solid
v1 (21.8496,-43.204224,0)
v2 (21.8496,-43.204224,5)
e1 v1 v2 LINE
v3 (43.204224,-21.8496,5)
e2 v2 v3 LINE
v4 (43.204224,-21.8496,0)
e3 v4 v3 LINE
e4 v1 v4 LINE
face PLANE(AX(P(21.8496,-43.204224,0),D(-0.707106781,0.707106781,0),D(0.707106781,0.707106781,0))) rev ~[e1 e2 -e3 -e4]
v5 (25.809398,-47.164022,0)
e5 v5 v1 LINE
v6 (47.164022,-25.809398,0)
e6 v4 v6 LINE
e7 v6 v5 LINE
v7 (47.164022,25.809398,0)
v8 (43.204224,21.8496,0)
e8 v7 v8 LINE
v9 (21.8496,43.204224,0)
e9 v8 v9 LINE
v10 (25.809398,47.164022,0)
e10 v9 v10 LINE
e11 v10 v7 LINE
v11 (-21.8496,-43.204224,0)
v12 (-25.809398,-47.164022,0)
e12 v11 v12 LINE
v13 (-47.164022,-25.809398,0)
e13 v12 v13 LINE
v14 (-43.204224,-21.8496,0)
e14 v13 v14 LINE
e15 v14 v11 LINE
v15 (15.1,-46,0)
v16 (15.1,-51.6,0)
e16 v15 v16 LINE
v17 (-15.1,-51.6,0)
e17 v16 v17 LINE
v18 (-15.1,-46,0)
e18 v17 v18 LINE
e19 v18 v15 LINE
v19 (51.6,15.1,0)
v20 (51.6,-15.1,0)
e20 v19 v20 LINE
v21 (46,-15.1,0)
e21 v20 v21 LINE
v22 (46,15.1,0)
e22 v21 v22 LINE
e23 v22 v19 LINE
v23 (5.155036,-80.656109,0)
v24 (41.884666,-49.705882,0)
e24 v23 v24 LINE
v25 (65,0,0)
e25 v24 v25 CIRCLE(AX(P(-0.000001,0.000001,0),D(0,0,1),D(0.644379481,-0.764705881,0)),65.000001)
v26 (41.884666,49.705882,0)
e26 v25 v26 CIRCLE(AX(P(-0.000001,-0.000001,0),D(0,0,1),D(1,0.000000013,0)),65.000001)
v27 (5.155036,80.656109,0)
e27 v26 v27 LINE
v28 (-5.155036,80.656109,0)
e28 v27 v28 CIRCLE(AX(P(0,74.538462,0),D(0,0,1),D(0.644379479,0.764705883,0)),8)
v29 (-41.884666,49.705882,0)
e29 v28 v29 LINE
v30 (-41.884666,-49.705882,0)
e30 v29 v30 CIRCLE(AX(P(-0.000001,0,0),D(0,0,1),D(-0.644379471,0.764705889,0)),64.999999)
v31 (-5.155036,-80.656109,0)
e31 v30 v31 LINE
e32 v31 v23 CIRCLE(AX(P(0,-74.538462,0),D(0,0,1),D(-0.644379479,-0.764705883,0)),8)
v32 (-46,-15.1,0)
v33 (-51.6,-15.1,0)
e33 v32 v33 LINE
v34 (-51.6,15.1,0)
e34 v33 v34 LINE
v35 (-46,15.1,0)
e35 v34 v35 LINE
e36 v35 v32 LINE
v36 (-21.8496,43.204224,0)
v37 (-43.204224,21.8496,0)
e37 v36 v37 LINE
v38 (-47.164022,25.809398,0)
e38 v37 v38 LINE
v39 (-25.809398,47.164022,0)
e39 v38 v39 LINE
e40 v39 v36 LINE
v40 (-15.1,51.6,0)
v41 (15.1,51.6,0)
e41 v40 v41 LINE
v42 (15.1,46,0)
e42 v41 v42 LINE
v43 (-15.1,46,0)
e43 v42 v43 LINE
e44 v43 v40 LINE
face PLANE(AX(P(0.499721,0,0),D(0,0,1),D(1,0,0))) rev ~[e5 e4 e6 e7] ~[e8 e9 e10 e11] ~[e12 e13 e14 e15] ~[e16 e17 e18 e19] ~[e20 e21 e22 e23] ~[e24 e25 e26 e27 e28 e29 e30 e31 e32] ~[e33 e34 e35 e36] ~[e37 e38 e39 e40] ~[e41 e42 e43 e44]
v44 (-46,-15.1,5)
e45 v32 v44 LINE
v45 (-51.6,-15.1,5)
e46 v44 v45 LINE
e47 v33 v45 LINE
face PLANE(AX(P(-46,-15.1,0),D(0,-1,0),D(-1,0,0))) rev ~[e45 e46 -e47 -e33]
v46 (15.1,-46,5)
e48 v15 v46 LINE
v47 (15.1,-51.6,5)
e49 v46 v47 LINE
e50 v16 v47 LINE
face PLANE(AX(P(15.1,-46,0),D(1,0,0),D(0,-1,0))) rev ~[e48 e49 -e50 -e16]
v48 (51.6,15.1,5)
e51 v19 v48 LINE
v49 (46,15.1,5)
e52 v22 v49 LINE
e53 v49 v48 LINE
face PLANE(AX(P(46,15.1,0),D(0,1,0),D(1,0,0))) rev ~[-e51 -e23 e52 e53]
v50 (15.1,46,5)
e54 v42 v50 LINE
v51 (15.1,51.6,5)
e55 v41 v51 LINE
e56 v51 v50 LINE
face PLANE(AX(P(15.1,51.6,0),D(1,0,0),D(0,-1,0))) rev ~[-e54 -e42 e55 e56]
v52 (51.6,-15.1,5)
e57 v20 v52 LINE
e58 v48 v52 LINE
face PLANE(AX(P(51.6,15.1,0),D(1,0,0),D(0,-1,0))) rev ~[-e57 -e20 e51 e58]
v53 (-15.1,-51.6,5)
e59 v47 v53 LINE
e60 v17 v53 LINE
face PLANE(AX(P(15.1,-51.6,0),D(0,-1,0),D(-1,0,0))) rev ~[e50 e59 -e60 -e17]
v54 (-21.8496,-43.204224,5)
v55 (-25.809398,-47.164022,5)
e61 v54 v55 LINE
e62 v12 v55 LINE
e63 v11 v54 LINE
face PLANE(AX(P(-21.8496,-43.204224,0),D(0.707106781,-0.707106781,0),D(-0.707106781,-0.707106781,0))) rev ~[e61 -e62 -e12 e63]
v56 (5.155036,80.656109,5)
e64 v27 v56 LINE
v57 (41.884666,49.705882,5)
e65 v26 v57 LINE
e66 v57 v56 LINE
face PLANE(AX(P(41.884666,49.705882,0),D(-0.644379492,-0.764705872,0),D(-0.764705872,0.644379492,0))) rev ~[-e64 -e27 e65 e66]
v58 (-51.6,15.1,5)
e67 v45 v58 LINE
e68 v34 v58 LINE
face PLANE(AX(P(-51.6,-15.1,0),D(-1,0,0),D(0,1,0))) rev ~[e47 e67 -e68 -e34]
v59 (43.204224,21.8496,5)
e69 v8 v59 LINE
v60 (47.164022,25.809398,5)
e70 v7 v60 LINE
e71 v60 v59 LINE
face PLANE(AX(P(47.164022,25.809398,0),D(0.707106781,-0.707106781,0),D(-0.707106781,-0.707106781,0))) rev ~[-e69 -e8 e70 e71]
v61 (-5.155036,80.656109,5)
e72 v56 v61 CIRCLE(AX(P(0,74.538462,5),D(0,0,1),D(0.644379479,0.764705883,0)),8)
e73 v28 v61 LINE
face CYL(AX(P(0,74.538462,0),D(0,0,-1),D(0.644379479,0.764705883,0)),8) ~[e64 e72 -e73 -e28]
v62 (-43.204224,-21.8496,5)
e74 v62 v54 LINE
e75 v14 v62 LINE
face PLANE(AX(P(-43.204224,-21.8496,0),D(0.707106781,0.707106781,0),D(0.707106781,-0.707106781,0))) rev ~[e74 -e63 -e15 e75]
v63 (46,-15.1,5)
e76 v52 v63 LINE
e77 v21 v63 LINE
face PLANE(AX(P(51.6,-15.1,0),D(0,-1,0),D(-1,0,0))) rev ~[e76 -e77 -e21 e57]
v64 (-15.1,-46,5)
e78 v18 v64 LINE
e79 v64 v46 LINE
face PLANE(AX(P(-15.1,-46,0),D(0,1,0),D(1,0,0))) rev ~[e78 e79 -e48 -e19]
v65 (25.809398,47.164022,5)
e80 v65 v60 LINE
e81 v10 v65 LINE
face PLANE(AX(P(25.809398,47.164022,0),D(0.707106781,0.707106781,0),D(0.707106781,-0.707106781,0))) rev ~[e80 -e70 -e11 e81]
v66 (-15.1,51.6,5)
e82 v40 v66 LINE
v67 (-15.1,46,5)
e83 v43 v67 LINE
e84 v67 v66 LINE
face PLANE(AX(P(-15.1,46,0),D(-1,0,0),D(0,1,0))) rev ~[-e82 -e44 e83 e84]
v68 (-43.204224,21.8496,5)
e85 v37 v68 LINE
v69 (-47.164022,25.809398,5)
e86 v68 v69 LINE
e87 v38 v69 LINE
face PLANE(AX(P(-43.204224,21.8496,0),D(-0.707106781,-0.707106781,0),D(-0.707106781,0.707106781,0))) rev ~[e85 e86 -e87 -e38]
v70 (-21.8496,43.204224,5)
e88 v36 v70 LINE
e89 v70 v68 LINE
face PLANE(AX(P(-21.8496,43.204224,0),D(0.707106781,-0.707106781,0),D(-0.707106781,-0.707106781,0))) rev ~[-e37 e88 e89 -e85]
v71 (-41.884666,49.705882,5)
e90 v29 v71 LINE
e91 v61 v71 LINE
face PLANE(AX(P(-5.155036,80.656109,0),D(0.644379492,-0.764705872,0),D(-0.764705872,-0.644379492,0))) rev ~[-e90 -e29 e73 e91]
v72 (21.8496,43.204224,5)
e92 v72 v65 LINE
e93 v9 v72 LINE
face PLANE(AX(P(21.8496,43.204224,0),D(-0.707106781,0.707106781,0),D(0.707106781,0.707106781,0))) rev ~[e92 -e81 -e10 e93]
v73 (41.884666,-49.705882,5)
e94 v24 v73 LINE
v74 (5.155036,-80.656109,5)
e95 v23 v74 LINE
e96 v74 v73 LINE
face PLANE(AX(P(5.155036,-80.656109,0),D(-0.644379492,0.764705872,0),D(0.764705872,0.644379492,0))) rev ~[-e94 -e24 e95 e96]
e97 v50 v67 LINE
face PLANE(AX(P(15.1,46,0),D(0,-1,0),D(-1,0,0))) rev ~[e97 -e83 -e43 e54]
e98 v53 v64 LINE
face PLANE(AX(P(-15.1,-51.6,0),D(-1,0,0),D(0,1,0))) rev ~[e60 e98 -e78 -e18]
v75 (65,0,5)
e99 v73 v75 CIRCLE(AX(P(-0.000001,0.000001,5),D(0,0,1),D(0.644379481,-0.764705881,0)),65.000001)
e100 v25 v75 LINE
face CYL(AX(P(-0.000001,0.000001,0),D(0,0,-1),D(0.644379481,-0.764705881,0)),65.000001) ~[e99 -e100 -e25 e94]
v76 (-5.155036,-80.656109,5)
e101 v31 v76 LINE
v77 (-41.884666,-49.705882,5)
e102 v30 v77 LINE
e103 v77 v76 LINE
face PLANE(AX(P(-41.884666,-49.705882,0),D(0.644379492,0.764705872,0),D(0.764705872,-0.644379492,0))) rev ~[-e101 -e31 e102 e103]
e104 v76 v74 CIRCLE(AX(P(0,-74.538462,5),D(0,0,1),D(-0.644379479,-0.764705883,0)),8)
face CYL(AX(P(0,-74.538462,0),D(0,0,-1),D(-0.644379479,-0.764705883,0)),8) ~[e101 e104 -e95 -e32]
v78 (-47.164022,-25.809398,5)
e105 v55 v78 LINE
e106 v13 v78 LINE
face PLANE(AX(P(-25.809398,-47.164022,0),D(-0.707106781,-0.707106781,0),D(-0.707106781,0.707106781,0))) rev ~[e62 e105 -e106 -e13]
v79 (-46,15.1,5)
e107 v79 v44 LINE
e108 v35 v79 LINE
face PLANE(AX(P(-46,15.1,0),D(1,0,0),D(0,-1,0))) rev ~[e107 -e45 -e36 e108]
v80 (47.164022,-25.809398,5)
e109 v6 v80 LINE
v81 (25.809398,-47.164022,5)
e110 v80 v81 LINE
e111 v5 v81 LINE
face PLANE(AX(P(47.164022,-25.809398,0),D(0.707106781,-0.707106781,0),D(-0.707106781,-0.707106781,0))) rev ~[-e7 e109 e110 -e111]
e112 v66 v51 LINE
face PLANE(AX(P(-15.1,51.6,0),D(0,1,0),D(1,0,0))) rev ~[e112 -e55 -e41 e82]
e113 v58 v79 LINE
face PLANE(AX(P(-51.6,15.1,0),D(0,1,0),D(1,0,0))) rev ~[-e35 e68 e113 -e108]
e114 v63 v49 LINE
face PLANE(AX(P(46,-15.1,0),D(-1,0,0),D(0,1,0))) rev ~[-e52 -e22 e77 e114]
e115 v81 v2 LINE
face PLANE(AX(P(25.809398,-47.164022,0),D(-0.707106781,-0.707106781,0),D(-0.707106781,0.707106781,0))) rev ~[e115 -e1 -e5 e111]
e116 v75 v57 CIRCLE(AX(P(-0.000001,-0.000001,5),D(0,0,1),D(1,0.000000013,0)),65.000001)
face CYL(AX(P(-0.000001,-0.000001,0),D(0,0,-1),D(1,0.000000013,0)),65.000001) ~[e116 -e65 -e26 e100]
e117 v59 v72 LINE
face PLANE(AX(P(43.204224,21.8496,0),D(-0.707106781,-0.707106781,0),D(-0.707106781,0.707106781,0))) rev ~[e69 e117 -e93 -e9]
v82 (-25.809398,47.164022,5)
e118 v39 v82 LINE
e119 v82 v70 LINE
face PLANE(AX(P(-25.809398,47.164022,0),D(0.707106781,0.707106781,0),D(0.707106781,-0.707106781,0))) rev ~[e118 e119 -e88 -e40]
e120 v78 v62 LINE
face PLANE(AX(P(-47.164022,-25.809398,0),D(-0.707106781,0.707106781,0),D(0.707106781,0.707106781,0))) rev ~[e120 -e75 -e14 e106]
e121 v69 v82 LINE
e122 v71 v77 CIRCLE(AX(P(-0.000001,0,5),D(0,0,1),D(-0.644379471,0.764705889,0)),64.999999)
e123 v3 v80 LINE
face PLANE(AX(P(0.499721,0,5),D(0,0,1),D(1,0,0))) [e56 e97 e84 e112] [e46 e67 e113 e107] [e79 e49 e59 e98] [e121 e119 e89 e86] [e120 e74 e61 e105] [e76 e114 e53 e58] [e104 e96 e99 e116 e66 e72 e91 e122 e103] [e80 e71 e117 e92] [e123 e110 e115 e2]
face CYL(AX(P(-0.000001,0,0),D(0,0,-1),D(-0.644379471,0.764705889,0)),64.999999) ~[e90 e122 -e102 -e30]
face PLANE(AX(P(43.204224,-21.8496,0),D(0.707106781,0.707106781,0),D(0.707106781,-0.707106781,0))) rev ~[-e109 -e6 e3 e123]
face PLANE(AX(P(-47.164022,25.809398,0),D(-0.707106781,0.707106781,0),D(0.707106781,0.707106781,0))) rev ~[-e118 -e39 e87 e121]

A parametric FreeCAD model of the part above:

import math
import FreeCAD as App
import Part
import Sketcher
from FreeCAD import Vector
Q = App.Units.Quantity


def add_polygon(sketch, points):
    """Adds a closed chain of lines whose ends are joined by coincident constraints."""
    first, n = sketch.GeometryCount, len(points)
    for a, b in zip(points, points[1:] + points[:1]):
        sketch.addGeometry(Part.LineSegment(App.Vector(*a, 0), App.Vector(*b, 0)), False)
    for i in range(n):
        sketch.addConstraint(Sketcher.Constraint("Coincident", first + i, 2, first + (i + 1) % n, 1))

doc = App.newDocument("Part")
body = doc.addObject("PartDesign::Body", "Body")

# Sketch on XY plane
sketch1 = body.newObject("Sketcher::SketchObject", "Sketch")
sketch1.AttachmentSupport = (doc.getObject("XY_Plane"), [""])
sketch1.MapMode = "FlatFace"
sketch1.addGeometry(Part.ArcOfCircle(Part.Circle(Vector(-0.000001, 0.000001, 0), Vector(0, 0, 1), 65.000001), math.radians(-49.880833), math.radians(-0.000001)), False)  # 0
sketch1.addGeometry(Part.ArcOfCircle(Part.Circle(Vector(-0.000001, -0.000001, 0), Vector(0, 0, 1), 65.000001), math.radians(0.000001), math.radians(49.880833)), False)  # 1
sketch1.addGeometry(Part.LineSegment(Vector(41.884666, 49.705882, 0), Vector(5.155036, 80.656109, 0)), False)  # 2
sketch1.addGeometry(Part.ArcOfCircle(Part.Circle(Vector(0, 74.538462, 0), Vector(0, 0, 1), 8), math.radians(49.880833), math.radians(130.119167)), False)  # 3
sketch1.addGeometry(Part.LineSegment(Vector(-5.155036, 80.656109, 0), Vector(-41.884666, 49.705882, 0)), False)  # 4
sketch1.addGeometry(Part.ArcOfCircle(Part.Circle(Vector(-0.000001, 0, 0), Vector(0, 0, 1), 64.999999), math.radians(130.119166), math.radians(229.880834)), False)  # 5
sketch1.addGeometry(Part.LineSegment(Vector(-41.884666, -49.705882, 0), Vector(-5.155036, -80.656109, 0)), False)  # 6
sketch1.addGeometry(Part.ArcOfCircle(Part.Circle(Vector(0, -74.538462, 0), Vector(0, 0, 1), 8), math.radians(-130.119167), math.radians(-49.880833)), False)  # 7
sketch1.addGeometry(Part.LineSegment(Vector(5.155036, -80.656109, 0), Vector(41.884666, -49.705882, 0)), False)  # 8
add_polygon(sketch1, [(-25.809398, -47.164022), (-47.164022, -25.809398), (-43.204224, -21.8496), (-21.8496, -43.204224)])  # lines 9-12
add_polygon(sketch1, [(15.1, -51.6), (-15.1, -51.6), (-15.1, -46), (15.1, -46)])  # lines 13-16
add_polygon(sketch1, [(47.164022, -25.809398), (25.809398, -47.164022), (21.8496, -43.204224), (43.204224, -21.8496)])  # lines 17-20
add_polygon(sketch1, [(-51.6, 15.1), (-46, 15.1), (-46, -15.1), (-51.6, -15.1)])  # lines 21-24
add_polygon(sketch1, [(-47.164022, 25.809398), (-25.809398, 47.164022), (-21.8496, 43.204224), (-43.204224, 21.8496)])  # lines 25-28
add_polygon(sketch1, [(51.6, 15.1), (51.6, -15.1), (46, -15.1), (46, 15.1)])  # lines 29-32
add_polygon(sketch1, [(-15.1, 51.6), (15.1, 51.6), (15.1, 46), (-15.1, 46)])  # lines 33-36
add_polygon(sketch1, [(25.809398, 47.164022), (47.164022, 25.809398), (43.204224, 21.8496), (21.8496, 43.204224)])  # lines 37-40
sketch1.addConstraint([
    Sketcher.Constraint("Tangent", 0, 2, 1, 1),
    Sketcher.Constraint("Tangent", 1, 2, 2, 1),
    Sketcher.Constraint("Tangent", 2, 2, 3, 1),
    Sketcher.Constraint("Tangent", 3, 2, 4, 1),
    Sketcher.Constraint("Tangent", 4, 2, 5, 1),
    Sketcher.Constraint("Tangent", 5, 2, 6, 1),
    Sketcher.Constraint("Tangent", 6, 2, 7, 1),
    Sketcher.Constraint("Tangent", 7, 2, 8, 1),
    Sketcher.Constraint("Tangent", 8, 2, 0, 1),
    Sketcher.Constraint("Horizontal", 13),
    Sketcher.Constraint("Vertical", 14),
    Sketcher.Constraint("Horizontal", 15),
    Sketcher.Constraint("Vertical", 16),
    Sketcher.Constraint("Horizontal", 21),
    Sketcher.Constraint("Vertical", 22),
    Sketcher.Constraint("Horizontal", 23),
    Sketcher.Constraint("Vertical", 24),
    Sketcher.Constraint("Vertical", 29),
    Sketcher.Constraint("Horizontal", 30),
    Sketcher.Constraint("Vertical", 31),
    Sketcher.Constraint("Horizontal", 32),
    Sketcher.Constraint("Horizontal", 33),
    Sketcher.Constraint("Vertical", 34),
    Sketcher.Constraint("Horizontal", 35),
    Sketcher.Constraint("Vertical", 36),
    Sketcher.Constraint("Coincident", 0, 3, -1, 1),
    Sketcher.Constraint("Coincident", 5, 3, -1, 1),
    Sketcher.Constraint("Equal", 0, 1),
    Sketcher.Constraint("Equal", 1, 5),
    Sketcher.Constraint("Equal", 3, 7),
    Sketcher.Constraint("Symmetric", 3, 3, 7, 3, -1, 1),
    Sketcher.Constraint("Symmetric", 17, 2, 25, 2, -1, 1),
    Sketcher.Constraint("Symmetric", 18, 2, 26, 2, -1, 1),
    Sketcher.Constraint("Symmetric", 19, 2, 27, 2, -1, 1),
    Sketcher.Constraint("Symmetric", 20, 2, 28, 2, -1, 1),
    Sketcher.Constraint("Symmetric", 24, 2, 29, 2, -1, 1),
    Sketcher.Constraint("Symmetric", 22, 2, 31, 2, -1, 1),
    Sketcher.Constraint("Symmetric", 13, 2, 33, 2, -1, 1),
    Sketcher.Constraint("Symmetric", 15, 2, 35, 2, -1, 1),
    Sketcher.Constraint("Symmetric", 9, 2, 37, 2, -1, 1),
    Sketcher.Constraint("Symmetric", 10, 2, 38, 2, -1, 1),
    Sketcher.Constraint("Symmetric", 11, 2, 39, 2, -1, 1),
    Sketcher.Constraint("Symmetric", 12, 2, 40, 2, -1, 1),
    Sketcher.Constraint("Symmetric", 12, 2, 17, 2, -2),
    Sketcher.Constraint("Symmetric", 11, 2, 18, 2, -2),
    Sketcher.Constraint("Symmetric", 10, 2, 19, 2, -2),
    Sketcher.Constraint("Symmetric", 9, 2, 20, 2, -2),
    Sketcher.Constraint("PointOnObject", 3, 3, -2),
    Sketcher.Constraint("PointOnObject", 0, 2, -1),
    Sketcher.Constraint("Perpendicular", 9, 10),
    Sketcher.Constraint("Perpendicular", 10, 11),
    Sketcher.Constraint("Perpendicular", 11, 12),
    Sketcher.Constraint("Parallel", 12, 17),
    Sketcher.Constraint("Horizontal", 23, 2, 29, 2),
    Sketcher.Constraint("Vertical", 16, 2, 33, 2),
    Sketcher.Constraint("Equal", 32, 14),
    Sketcher.Constraint("Equal", 35, 22),
    Sketcher.Constraint("Radius", 0, Q("65.000001 mm")),
    Sketcher.Constraint("Radius", 3, Q("8 mm")),
    Sketcher.Constraint("DistanceX", 13, 2, 13, 1, Q("30.2 mm")),
    Sketcher.Constraint("DistanceX", 21, 1, 21, 2, Q("5.6 mm")),
    Sketcher.Constraint("DistanceY", 14, 2, -1, 1, Q("46 mm")),
    Sketcher.Constraint("DistanceX", 21, 2, -1, 1, Q("46 mm")),
    Sketcher.Constraint("Distance", 9, Q("30.199999 mm")),
    Sketcher.Constraint("Distance", 10, Q("5.6 mm")),
    Sketcher.Constraint("DistanceY", 9, 2, -1, 1, Q("25.809398 mm")),
    Sketcher.Constraint("DistanceX", 11, 2, -1, 1, Q("21.8496 mm")),
    Sketcher.Constraint("DistanceX", 5, 2, 7, 2, Q("47.039702 mm")),
])
pad1 = body.newObject("PartDesign::Pad", "Pad")
pad1.Profile = sketch1
pad1.Length = 5

doc.recompute()
